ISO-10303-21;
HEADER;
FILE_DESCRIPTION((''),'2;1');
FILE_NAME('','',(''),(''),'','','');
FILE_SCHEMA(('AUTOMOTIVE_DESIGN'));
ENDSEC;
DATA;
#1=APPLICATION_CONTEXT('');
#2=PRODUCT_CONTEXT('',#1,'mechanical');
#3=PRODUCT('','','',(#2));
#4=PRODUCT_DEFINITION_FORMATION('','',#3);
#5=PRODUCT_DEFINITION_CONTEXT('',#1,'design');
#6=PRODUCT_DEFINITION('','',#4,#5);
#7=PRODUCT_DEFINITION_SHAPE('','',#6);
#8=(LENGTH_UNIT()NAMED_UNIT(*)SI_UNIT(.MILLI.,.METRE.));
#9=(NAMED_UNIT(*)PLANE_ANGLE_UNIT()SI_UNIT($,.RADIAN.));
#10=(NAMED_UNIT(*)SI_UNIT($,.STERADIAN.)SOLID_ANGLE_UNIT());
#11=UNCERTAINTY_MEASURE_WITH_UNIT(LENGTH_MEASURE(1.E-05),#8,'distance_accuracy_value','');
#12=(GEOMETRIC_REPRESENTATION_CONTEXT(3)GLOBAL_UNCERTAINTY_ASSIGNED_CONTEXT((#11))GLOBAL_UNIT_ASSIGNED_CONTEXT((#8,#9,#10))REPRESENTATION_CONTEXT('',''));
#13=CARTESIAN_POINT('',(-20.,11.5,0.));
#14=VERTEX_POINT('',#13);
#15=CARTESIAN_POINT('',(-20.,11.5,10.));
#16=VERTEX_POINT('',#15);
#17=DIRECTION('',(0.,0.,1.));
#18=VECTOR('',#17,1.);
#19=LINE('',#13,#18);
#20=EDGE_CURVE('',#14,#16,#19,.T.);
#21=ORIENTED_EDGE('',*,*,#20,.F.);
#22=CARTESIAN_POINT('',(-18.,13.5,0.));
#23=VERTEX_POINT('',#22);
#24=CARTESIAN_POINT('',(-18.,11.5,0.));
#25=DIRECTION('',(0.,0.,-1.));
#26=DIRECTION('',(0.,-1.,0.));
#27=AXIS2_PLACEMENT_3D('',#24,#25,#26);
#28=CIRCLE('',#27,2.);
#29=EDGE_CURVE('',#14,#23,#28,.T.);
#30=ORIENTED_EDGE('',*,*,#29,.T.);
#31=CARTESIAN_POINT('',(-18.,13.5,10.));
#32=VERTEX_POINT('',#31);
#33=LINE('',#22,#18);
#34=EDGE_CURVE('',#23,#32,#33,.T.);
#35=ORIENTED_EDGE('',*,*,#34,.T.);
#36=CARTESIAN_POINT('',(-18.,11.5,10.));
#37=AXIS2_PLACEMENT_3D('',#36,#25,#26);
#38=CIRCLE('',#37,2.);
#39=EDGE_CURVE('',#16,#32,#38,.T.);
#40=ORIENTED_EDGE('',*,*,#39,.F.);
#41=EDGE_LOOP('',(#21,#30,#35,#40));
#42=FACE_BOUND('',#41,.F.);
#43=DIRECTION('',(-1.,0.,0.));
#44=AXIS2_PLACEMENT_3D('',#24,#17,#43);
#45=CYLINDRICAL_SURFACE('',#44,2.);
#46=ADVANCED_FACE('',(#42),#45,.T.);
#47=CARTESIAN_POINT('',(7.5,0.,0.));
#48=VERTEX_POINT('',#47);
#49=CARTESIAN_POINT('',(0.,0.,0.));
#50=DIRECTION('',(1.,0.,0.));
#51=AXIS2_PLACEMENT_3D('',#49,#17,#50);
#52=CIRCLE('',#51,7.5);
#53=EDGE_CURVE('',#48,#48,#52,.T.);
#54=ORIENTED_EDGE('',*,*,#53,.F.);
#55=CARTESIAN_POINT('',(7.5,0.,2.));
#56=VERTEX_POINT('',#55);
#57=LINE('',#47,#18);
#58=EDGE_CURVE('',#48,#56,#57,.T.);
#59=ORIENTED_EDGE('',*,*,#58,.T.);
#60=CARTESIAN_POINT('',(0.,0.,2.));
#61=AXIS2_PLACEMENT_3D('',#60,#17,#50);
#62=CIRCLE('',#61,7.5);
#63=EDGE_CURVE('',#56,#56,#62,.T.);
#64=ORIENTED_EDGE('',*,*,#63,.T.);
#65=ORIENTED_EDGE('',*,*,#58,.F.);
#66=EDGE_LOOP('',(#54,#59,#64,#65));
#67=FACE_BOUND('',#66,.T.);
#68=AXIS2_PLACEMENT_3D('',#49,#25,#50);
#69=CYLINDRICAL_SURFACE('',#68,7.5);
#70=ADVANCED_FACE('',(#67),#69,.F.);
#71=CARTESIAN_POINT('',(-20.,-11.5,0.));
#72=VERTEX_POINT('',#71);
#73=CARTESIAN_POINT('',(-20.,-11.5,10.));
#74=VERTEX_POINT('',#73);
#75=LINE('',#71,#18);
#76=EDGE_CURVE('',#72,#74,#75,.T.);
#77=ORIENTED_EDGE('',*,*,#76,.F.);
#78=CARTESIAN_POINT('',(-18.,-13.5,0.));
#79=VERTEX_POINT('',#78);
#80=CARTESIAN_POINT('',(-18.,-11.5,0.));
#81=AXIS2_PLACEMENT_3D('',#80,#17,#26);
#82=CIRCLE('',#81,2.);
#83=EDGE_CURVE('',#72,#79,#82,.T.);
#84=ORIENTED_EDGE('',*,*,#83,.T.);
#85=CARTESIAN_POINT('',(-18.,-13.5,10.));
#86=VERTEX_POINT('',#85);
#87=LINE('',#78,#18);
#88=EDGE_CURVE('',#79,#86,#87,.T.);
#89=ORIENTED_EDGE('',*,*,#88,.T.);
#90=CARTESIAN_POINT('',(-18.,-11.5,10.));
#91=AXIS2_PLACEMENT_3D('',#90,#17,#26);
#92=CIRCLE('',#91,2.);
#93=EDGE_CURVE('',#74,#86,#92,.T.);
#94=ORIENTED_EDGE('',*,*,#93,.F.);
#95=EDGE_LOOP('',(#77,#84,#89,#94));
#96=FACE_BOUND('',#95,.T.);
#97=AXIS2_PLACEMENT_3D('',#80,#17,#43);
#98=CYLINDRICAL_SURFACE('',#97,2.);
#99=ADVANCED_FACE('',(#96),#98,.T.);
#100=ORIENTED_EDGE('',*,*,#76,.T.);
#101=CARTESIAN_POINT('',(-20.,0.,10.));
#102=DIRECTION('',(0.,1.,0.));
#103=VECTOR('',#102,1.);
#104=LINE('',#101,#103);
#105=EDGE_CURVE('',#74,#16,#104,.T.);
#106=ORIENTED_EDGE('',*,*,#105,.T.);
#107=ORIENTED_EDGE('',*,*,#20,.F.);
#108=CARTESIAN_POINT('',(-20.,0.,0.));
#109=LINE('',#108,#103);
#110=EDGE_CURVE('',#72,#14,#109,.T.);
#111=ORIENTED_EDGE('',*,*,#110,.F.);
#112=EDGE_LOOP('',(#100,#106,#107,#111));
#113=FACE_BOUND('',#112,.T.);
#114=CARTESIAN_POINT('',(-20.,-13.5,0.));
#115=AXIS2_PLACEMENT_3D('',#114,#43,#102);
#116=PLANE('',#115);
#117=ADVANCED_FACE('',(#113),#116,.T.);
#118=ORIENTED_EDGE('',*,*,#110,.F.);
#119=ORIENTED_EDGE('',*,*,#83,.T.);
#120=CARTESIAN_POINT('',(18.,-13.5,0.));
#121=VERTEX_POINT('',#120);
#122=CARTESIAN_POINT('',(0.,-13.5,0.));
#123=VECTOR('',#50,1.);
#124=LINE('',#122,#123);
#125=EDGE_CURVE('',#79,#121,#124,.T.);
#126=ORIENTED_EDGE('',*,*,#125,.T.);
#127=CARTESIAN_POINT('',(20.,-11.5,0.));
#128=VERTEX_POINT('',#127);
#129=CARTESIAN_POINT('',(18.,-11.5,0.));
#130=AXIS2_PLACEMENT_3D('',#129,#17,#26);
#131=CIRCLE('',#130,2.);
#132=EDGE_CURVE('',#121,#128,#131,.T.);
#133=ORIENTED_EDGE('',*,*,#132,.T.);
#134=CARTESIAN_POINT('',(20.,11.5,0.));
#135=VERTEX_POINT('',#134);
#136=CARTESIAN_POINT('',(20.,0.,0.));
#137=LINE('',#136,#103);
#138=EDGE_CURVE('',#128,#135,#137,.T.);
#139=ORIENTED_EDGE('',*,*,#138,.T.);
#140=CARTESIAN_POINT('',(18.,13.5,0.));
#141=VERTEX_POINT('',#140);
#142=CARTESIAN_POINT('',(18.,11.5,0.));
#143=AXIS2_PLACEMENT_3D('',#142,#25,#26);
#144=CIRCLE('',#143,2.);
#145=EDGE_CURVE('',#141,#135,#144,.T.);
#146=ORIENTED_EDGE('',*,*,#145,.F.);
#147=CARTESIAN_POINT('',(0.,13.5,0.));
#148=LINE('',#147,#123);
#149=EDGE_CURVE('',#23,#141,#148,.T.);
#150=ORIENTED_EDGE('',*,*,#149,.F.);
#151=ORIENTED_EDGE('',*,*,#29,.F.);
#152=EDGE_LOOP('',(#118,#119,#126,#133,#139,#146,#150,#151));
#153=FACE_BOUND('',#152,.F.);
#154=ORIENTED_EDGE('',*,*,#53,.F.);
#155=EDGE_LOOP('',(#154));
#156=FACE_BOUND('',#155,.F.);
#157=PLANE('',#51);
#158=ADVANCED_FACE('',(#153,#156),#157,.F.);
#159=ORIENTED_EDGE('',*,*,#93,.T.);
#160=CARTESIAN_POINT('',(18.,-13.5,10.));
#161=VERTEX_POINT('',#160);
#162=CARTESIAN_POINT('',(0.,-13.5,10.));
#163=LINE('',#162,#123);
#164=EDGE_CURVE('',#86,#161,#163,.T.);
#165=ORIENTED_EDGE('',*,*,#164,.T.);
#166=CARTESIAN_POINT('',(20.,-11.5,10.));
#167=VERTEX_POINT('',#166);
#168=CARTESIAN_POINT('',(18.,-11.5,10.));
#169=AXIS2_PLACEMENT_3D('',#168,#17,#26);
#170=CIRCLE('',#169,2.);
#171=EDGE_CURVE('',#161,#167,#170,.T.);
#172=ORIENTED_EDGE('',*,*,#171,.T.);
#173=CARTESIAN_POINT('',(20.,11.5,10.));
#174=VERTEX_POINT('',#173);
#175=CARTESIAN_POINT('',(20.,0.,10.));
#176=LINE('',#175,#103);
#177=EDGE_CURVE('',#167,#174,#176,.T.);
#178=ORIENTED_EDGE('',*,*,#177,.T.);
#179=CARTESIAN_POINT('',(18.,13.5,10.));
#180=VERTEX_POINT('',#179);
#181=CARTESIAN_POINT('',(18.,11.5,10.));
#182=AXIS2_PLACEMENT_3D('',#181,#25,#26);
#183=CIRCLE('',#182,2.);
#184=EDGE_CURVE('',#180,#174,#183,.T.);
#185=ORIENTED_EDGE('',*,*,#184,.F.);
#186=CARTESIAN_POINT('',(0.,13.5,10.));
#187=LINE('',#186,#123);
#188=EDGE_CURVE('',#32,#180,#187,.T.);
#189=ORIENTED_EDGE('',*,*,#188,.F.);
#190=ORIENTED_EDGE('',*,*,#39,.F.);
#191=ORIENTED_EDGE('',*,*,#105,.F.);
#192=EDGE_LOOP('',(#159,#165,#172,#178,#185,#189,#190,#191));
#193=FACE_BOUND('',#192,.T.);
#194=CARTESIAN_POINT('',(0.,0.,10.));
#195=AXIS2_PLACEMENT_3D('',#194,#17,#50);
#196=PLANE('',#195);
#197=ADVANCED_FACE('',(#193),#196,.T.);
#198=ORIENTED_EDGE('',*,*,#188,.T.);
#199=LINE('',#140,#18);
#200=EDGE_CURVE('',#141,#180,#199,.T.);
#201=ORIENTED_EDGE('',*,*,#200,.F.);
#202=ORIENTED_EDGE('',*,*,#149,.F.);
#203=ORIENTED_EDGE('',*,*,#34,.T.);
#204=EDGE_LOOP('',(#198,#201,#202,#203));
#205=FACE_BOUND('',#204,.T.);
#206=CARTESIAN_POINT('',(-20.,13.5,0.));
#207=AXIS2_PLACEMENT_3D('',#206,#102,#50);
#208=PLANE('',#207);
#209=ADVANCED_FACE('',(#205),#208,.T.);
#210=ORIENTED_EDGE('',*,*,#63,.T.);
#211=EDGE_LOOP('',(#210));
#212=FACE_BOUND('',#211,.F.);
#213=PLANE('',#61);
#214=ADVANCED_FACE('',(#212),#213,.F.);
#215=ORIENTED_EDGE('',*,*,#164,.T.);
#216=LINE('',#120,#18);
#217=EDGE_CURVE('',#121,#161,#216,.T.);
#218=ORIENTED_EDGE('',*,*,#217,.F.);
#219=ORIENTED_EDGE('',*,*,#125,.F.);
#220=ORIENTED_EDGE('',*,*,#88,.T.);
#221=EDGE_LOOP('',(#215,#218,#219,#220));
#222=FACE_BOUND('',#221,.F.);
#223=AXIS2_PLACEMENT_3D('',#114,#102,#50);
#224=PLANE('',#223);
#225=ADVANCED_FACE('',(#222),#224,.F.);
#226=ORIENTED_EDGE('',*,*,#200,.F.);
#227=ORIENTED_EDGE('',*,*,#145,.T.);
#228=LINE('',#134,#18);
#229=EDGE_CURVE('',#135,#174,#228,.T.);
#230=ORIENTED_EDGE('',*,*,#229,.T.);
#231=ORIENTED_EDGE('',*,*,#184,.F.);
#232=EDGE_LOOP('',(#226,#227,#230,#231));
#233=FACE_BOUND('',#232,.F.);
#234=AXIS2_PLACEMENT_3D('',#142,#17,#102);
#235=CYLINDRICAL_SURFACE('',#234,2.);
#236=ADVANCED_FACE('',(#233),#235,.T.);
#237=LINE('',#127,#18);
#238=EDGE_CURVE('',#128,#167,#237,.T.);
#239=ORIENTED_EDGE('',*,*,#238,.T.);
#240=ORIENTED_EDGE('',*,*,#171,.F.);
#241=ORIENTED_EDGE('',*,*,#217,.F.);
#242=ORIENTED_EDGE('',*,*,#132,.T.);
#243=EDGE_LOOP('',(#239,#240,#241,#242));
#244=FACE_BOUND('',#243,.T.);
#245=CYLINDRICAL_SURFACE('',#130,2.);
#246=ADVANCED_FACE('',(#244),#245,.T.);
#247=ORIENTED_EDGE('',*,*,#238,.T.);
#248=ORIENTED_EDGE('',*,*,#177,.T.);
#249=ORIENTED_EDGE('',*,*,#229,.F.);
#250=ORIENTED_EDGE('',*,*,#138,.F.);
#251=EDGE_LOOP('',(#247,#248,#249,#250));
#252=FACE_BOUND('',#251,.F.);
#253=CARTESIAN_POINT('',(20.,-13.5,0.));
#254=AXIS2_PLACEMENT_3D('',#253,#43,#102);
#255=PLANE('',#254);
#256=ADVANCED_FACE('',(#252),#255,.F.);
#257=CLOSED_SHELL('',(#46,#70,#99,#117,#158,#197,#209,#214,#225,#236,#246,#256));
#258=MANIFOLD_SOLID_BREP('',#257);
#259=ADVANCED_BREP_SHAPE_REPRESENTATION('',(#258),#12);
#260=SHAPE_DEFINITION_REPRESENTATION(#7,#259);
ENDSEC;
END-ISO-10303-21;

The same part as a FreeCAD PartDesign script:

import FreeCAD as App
import Part
import Sketcher
from FreeCAD import Vector


def edges_at(feature, points):
    """Names of the edges that pass closest to the given points."""
    edges = feature.Shape.Edges
    near = lambda p: min(range(len(edges)), key=lambda i: edges[i].distToShape(Part.Vertex(*p))[0])
    return sorted({f"Edge{near(p) + 1}" for p in points})

doc = App.newDocument("Part")
body = doc.addObject("PartDesign::Body", "Body")

# Sketch on XY plane
sketch1 = body.newObject("Sketcher::SketchObject", "Sketch")
sketch1.AttachmentSupport = (doc.getObject("XY_Plane"), [""])
sketch1.MapMode = "FlatFace"
sketch1.addGeometry([
    Part.LineSegment(Vector(-20, 14, 0), Vector(-20, -14, 0)),
    Part.LineSegment(Vector(-20, -14, 0), Vector(20, -14, 0)),
    Part.LineSegment(Vector(20, -14, 0), Vector(20, 14, 0)),
    Part.LineSegment(Vector(20, 14, 0), Vector(-20, 14, 0)),
], False)
sketch1.addConstraint([
    Sketcher.Constraint("Coincident", 0, 2, 1, 1),
    Sketcher.Constraint("Coincident", 1, 2, 2, 1),
    Sketcher.Constraint("Coincident", 2, 2, 3, 1),
    Sketcher.Constraint("Coincident", 3, 2, 0, 1),
    Sketcher.Constraint("Vertical", 0),
    Sketcher.Constraint("Horizontal", 1),
    Sketcher.Constraint("Vertical", 2),
    Sketcher.Constraint("Horizontal", 3),
    Sketcher.Constraint("Symmetric", 0, 2, 2, 2, -1, 1),
    Sketcher.Constraint("DistanceX", 1, 1, 1, 2, 40.0),
    Sketcher.Constraint("DistanceY", 0, 2, 0, 1, 27.0),
])
pad1 = body.newObject("PartDesign::Pad", "Pad")
pad1.Profile = sketch1
pad1.Length = 10

# Sketch on XY plane
sketch2 = body.newObject("Sketcher::SketchObject", "Sketch001")
sketch2.AttachmentSupport = (doc.getObject("XY_Plane"), [""])
sketch2.MapMode = "FlatFace"
sketch2.addGeometry(Part.Circle(Vector(0, 0, 0), Vector(0, 0, 1), 8), False)
sketch2.addConstraint([
    Sketcher.Constraint("Coincident", 0, 3, -1, 1),
    Sketcher.Constraint("Diameter", 0, 15.0),
])
pocket1 = body.newObject("PartDesign::Pocket", "Pocket")
pocket1.Profile = sketch2
pocket1.Length = 2
pocket1.Reversed = True
doc.recompute()

fillet = body.newObject("PartDesign::Fillet", "Fillet")
fillet.Base = (pocket1, edges_at(pocket1, [
    (20, -13.5, 5),
    (20, 13.5, 5),
    (-20, 13.5, 5),
    (-20, -13.5, 5),
]))
fillet.Radius = 2

doc.recompute()
